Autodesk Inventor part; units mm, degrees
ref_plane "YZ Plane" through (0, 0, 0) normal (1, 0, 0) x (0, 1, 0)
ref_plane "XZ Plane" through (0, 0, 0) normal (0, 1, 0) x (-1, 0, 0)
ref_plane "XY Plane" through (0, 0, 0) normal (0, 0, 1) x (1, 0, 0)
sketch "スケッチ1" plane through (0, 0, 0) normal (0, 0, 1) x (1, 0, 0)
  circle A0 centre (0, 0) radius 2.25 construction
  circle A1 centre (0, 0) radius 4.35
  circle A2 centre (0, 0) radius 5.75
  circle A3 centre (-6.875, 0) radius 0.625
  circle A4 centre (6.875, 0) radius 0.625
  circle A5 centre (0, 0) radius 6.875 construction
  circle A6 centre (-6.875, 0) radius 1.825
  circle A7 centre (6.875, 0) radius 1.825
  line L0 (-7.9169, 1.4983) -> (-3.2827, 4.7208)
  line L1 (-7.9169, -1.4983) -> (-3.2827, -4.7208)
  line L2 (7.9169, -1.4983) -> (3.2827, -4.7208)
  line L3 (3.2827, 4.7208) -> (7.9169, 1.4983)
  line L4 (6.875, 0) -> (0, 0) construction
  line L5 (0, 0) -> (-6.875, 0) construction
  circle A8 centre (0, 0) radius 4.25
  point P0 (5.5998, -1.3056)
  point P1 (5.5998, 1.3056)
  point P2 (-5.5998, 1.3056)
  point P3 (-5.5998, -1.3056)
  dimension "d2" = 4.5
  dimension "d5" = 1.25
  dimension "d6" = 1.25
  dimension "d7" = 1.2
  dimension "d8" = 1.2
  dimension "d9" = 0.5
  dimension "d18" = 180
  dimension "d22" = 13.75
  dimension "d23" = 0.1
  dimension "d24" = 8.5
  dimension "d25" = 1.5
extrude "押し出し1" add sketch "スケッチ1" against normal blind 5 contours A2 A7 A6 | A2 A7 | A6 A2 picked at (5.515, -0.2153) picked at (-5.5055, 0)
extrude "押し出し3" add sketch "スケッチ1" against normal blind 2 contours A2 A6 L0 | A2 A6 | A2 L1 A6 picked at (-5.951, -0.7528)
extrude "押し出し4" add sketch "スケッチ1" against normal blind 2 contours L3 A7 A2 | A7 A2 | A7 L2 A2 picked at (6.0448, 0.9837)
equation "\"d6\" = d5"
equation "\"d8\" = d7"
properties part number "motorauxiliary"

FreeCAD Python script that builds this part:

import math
import FreeCAD as App
import Part
import Sketcher

V = App.Vector

doc = App.newDocument("Part")
body = doc.addObject("PartDesign::Body", "Body")

# Sketch on XY plane
sketch1 = body.newObject("Sketcher::SketchObject", "Sketch")
sketch1.AttachmentSupport = (doc.getObject("XY_Plane"), [""])
sketch1.MapMode = "FlatFace"
sketch1.addGeometry(Part.Circle(V(0, 0, 0), V(0, 0, 1), 5.8), False)
sketch1.addGeometry(Part.Circle(V(0, 0, 0), V(0, 0, 1), 4.3), False)
sketch1.addConstraint(Sketcher.Constraint("Coincident", 0, 3, -1, 1))
sketch1.addConstraint(Sketcher.Constraint("Coincident", 1, 3, -1, 1))
sketch1.addConstraint(Sketcher.Constraint("Diameter", 0, 11.5))
sketch1.addConstraint(Sketcher.Constraint("Diameter", 1, 8.7))
pad1 = body.newObject("PartDesign::Pad", "Pad")
pad1.Profile = sketch1
pad1.Length = 5
pad1.Reversed = True

# Sketch on XY plane
sketch2 = body.newObject("Sketcher::SketchObject", "Sketch001")
sketch2.AttachmentSupport = (doc.getObject("XY_Plane"), [""])
sketch2.MapMode = "FlatFace"
sketch2.addGeometry(Part.LineSegment(V(-3.3, 4.7, 0), V(-7.9, 1.5, 0)), False)
sketch2.addGeometry(Part.ArcOfCircle(Part.Circle(V(-6.9, 0, 0), V(0, 0, 1), 1.8), math.radians(125), math.radians(235)), False)
sketch2.addGeometry(Part.LineSegment(V(-7.9, -1.5, 0), V(-3.3, -4.7, 0)), False)
sketch2.addGeometry(Part.ArcOfCircle(Part.Circle(V(0, 0, 0), V(0, 0, 1), 5.8), math.radians(125), math.radians(235)), False)
sketch2.addGeometry(Part.Circle(V(-6.9, 0, 0), V(0, 0, 1), 0.6), False)
sketch2.addConstraint(Sketcher.Constraint("Tangent", 0, 2, 1, 1))
sketch2.addConstraint(Sketcher.Constraint("Tangent", 1, 2, 2, 1))
sketch2.addConstraint(Sketcher.Constraint("Tangent", 2, 2, 3, 2))
sketch2.addConstraint(Sketcher.Constraint("Tangent", 3, 1, 0, 1))
sketch2.addConstraint(Sketcher.Constraint("Coincident", 3, 3, -1, 1))
sketch2.addConstraint(Sketcher.Constraint("Coincident", 4, 3, 1, 3))
sketch2.addConstraint(Sketcher.Constraint("PointOnObject", 1, 3, -1))
sketch2.addConstraint(Sketcher.Constraint("Diameter", 4, 1.25))
sketch2.addConstraint(Sketcher.Constraint("Radius", 3, 5.75))
sketch2.addConstraint(Sketcher.Constraint("Radius", 1, 1.825))
sketch2.addConstraint(Sketcher.Constraint("DistanceX", 1, 3, -1, 1, 6.875))
pad2 = body.newObject("PartDesign::Pad", "Pad001")
pad2.Profile = sketch2
pad2.Length = 2
pad2.Reversed = True

# Sketch on XY plane
sketch3 = body.newObject("Sketcher::SketchObject", "Sketch002")
sketch3.AttachmentSupport = (doc.getObject("XY_Plane"), [""])
sketch3.MapMode = "FlatFace"
sketch3.addGeometry(Part.LineSegment(V(7.9, 1.5, 0), V(3.3, 4.7, 0)), False)
sketch3.addGeometry(Part.ArcOfCircle(Part.Circle(V(0, 0, 0), V(0, 0, 1), 5.8), math.radians(-55), math.radians(55)), False)
sketch3.addGeometry(Part.LineSegment(V(3.3, -4.7, 0), V(7.9, -1.5, 0)), False)
sketch3.addGeometry(Part.ArcOfCircle(Part.Circle(V(6.9, 0, 0), V(0, 0, 1), 1.8), math.radians(-55), math.radians(55)), False)
sketch3.addGeometry(Part.Circle(V(6.9, 0, 0), V(0, 0, 1), 0.6), False)
sketch3.addConstraint(Sketcher.Constraint("Tangent", 0, 2, 1, 2))
sketch3.addConstraint(Sketcher.Constraint("Tangent", 1, 1, 2, 1))
sketch3.addConstraint(Sketcher.Constraint("Tangent", 2, 2, 3, 1))
sketch3.addConstraint(Sketcher.Constraint("Tangent", 3, 2, 0, 1))
sketch3.addConstraint(Sketcher.Constraint("Coincident", 1, 3, -1, 1))
sketch3.addConstraint(Sketcher.Constraint("Coincident", 4, 3, 3, 3))
sketch3.addConstraint(Sketcher.Constraint("PointOnObject", 3, 3, -1))
sketch3.addConstraint(Sketcher.Constraint("Diameter", 4, 1.25))
sketch3.addConstraint(Sketcher.Constraint("Radius", 1, 5.75))
sketch3.addConstraint(Sketcher.Constraint("Radius", 3, 1.825))
sketch3.addConstraint(Sketcher.Constraint("DistanceX", -1, 1, 3, 3, 6.875))
pad3 = body.newObject("PartDesign::Pad", "Pad002")
pad3.Profile = sketch3
pad3.Length = 2
pad3.Reversed = True

doc.recompute()
